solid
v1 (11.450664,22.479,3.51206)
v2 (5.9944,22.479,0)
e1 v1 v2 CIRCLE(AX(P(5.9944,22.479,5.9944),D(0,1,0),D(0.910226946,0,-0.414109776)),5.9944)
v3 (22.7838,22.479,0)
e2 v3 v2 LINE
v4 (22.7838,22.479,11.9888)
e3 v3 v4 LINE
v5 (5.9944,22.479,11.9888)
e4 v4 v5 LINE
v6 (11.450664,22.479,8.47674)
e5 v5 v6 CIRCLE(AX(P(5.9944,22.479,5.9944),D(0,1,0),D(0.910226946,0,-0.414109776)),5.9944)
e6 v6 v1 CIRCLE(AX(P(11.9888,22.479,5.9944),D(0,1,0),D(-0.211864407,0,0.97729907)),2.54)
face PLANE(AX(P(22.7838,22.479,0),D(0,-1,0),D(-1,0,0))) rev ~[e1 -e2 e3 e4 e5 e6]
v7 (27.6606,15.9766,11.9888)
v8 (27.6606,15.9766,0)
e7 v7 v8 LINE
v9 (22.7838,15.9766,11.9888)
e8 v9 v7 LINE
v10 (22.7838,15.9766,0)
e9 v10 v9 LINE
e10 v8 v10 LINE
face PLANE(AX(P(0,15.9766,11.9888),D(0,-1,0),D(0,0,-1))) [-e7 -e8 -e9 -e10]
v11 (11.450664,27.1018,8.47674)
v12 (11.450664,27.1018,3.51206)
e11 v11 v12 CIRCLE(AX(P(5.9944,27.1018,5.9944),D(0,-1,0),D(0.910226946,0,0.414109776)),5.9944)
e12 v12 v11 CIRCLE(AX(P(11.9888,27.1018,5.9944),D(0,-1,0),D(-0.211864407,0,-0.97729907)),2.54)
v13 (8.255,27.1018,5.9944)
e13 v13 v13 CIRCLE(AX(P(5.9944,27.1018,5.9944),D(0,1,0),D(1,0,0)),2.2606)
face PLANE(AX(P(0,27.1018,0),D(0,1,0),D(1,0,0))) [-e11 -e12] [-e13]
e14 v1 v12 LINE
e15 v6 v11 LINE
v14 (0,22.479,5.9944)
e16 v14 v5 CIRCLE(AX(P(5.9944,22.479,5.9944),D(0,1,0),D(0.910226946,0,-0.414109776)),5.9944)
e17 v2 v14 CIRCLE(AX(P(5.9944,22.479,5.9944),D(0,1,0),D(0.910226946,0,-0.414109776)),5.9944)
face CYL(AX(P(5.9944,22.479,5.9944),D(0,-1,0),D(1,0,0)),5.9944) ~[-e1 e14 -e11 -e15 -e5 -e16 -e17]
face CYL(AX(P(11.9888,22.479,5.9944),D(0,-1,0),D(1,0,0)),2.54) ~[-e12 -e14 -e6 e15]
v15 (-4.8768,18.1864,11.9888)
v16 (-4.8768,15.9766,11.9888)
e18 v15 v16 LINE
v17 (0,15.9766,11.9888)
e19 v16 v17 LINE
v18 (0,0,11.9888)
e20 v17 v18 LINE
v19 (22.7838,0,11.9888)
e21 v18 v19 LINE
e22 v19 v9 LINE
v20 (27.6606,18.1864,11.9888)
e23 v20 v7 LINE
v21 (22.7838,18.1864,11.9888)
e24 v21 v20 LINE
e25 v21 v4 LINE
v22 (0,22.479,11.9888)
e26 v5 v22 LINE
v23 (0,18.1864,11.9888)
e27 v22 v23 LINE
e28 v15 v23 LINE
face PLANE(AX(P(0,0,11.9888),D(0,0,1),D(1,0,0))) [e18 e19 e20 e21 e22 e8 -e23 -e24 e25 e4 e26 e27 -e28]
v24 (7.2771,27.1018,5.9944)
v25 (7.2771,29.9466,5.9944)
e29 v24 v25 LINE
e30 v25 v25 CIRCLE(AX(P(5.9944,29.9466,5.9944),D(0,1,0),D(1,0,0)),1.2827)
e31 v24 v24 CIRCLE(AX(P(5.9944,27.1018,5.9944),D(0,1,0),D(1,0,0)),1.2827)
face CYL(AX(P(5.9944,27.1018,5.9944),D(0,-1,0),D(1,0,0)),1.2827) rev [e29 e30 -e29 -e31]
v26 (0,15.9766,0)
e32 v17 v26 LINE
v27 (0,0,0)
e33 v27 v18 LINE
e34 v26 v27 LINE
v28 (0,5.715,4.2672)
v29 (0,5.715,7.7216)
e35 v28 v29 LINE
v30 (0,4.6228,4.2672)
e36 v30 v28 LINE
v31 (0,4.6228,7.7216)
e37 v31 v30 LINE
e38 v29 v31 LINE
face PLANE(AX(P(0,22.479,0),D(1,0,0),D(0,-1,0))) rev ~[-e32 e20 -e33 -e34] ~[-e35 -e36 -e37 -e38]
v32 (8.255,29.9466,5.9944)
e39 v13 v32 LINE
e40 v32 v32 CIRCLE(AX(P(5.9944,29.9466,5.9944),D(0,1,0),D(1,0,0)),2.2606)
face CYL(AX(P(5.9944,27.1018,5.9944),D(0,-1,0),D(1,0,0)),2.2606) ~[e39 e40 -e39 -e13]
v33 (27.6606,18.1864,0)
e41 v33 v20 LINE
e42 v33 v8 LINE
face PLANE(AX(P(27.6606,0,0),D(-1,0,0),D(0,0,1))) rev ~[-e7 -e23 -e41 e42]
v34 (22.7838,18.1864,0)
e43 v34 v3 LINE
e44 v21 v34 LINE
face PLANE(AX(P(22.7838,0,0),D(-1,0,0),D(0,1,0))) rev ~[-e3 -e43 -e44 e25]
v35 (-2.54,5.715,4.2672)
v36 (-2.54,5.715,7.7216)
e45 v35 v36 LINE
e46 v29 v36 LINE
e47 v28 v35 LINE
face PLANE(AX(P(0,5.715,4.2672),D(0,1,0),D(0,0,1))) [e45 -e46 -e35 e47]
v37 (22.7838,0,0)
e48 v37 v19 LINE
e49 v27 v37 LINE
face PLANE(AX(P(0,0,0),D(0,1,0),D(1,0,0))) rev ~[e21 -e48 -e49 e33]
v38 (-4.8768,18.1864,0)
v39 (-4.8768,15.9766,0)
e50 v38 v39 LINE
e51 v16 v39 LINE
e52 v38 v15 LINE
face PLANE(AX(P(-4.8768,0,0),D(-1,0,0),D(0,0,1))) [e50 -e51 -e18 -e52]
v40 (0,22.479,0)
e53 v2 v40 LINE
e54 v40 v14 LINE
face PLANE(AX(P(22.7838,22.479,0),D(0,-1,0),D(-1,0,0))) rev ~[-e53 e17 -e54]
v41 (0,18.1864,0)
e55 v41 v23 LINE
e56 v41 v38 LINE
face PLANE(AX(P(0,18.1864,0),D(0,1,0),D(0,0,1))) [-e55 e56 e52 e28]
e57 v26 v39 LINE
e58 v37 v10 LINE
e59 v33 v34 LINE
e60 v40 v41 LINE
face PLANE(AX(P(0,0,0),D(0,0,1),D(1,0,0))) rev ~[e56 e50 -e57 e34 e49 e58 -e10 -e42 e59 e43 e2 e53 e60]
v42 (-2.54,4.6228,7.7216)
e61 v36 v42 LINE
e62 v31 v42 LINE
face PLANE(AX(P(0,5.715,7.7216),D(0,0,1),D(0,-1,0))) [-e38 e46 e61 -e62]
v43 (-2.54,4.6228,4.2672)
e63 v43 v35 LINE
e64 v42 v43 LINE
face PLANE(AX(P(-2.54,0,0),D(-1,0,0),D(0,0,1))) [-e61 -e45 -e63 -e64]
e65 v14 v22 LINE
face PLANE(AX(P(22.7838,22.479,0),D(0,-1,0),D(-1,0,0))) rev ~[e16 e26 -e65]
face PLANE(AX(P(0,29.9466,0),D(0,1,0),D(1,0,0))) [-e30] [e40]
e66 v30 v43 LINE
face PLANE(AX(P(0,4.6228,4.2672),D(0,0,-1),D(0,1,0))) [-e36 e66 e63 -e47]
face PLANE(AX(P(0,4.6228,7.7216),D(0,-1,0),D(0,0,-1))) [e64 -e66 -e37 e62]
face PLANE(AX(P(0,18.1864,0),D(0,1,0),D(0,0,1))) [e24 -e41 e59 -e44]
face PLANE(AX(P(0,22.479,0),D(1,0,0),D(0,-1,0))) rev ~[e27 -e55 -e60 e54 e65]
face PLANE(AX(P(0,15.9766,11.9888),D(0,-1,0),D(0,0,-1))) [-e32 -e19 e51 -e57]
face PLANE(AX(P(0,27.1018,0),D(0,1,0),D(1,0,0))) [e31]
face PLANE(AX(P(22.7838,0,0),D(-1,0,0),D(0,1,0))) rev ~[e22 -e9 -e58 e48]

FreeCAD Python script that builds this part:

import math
import FreeCAD as App
import Part
import Sketcher
Q = App.Units.Quantity

doc = App.newDocument("Part")
body = doc.addObject("PartDesign::Body", "Body")

# Sketch on XY plane
sketch1 = doc.addObject("Sketcher::SketchObject", "Sketch")
body.addObject(sketch1)
sketch1.AttachmentSupport = (doc.XY_Plane, [""])
sketch1.MapMode = "FlatFace"
sketch1.addGeometry(Part.LineSegment(App.Vector(0, 22.479, 0), App.Vector(0, 0, 0)), False)
sketch1.addGeometry(Part.LineSegment(App.Vector(0, 0, 0), App.Vector(22.7838, 0, 0)), False)
sketch1.addGeometry(Part.LineSegment(App.Vector(22.7838, 0, 0), App.Vector(22.7838, 22.479, 0)), False)
sketch1.addGeometry(Part.LineSegment(App.Vector(22.7838, 22.479, 0), App.Vector(0, 22.479, 0)), False)
sketch1.addConstraint(Sketcher.Constraint("Coincident", 0, 2, 1, 1))
sketch1.addConstraint(Sketcher.Constraint("Coincident", 1, 2, 2, 1))
sketch1.addConstraint(Sketcher.Constraint("Coincident", 2, 2, 3, 1))
sketch1.addConstraint(Sketcher.Constraint("Coincident", 3, 2, 0, 1))
sketch1.addConstraint(Sketcher.Constraint("Vertical", 0))
sketch1.addConstraint(Sketcher.Constraint("Horizontal", 1))
sketch1.addConstraint(Sketcher.Constraint("Vertical", 2))
sketch1.addConstraint(Sketcher.Constraint("Horizontal", 3))
sketch1.addConstraint(Sketcher.Constraint("Coincident", 0, 2, -1, 1))
sketch1.addConstraint(Sketcher.Constraint("DistanceX", 1, 1, 1, 2, Q("0.897 in")))
sketch1.addConstraint(Sketcher.Constraint("DistanceY", 0, 2, 0, 1, Q("0.885 in")))
pad1 = doc.addObject("PartDesign::Pad", "Pad")
body.addObject(pad1)
pad1.Profile = sketch1
pad1.Length = Q("0.472 in")

# Sketch on YZ plane
sketch2 = doc.addObject("Sketcher::SketchObject", "Sketch001")
body.addObject(sketch2)
sketch2.AttachmentSupport = (doc.YZ_Plane, [""])
sketch2.MapMode = "FlatFace"
sketch2.addGeometry(Part.LineSegment(App.Vector(18.1864, 11.9888, 0), App.Vector(18.1864, 0, 0)), False)
sketch2.addGeometry(Part.LineSegment(App.Vector(18.1864, 0, 0), App.Vector(15.9766, 0, 0)), False)
sketch2.addGeometry(Part.LineSegment(App.Vector(15.9766, 0, 0), App.Vector(15.9766, 11.9888, 0)), False)
sketch2.addGeometry(Part.LineSegment(App.Vector(15.9766, 11.9888, 0), App.Vector(18.1864, 11.9888, 0)), False)
sketch2.addConstraint(Sketcher.Constraint("Coincident", 0, 2, 1, 1))
sketch2.addConstraint(Sketcher.Constraint("Coincident", 1, 2, 2, 1))
sketch2.addConstraint(Sketcher.Constraint("Coincident", 2, 2, 3, 1))
sketch2.addConstraint(Sketcher.Constraint("Coincident", 3, 2, 0, 1))
sketch2.addConstraint(Sketcher.Constraint("Vertical", 0))
sketch2.addConstraint(Sketcher.Constraint("Horizontal", 1))
sketch2.addConstraint(Sketcher.Constraint("Vertical", 2))
sketch2.addConstraint(Sketcher.Constraint("Horizontal", 3))
sketch2.addConstraint(Sketcher.Constraint("PointOnObject", 0, 2, -1))
sketch2.addConstraint(Sketcher.Constraint("DistanceX", 1, 2, 1, 1, Q("0.087 in")))
sketch2.addConstraint(Sketcher.Constraint("DistanceY", 0, 2, 0, 1, Q("0.472 in")))
sketch2.addConstraint(Sketcher.Constraint("DistanceX", -1, 1, 0, 2, Q("0.716 in")))
pad2 = doc.addObject("PartDesign::Pad", "Pad001")
body.addObject(pad2)
pad2.Profile = sketch2
pad2.Type = "TwoLengths"
pad2.Length = Q("0.192 in")
pad2.Length2 = Q("1.089 in")
pad2.Reversed = True

# Sketch on YZ plane
sketch3 = doc.addObject("Sketcher::SketchObject", "Sketch002")
body.addObject(sketch3)
sketch3.AttachmentSupport = (doc.YZ_Plane, [""])
sketch3.MapMode = "FlatFace"
sketch3.addGeometry(Part.LineSegment(App.Vector(5.715, 7.7216, 0), App.Vector(5.715, 4.2672, 0)), False)
sketch3.addGeometry(Part.LineSegment(App.Vector(5.715, 4.2672, 0), App.Vector(4.6228, 4.2672, 0)), False)
sketch3.addGeometry(Part.LineSegment(App.Vector(4.6228, 4.2672, 0), App.Vector(4.6228, 7.7216, 0)), False)
sketch3.addGeometry(Part.LineSegment(App.Vector(4.6228, 7.7216, 0), App.Vector(5.715, 7.7216, 0)), False)
sketch3.addConstraint(Sketcher.Constraint("Coincident", 0, 2, 1, 1))
sketch3.addConstraint(Sketcher.Constraint("Coincident", 1, 2, 2, 1))
sketch3.addConstraint(Sketcher.Constraint("Coincident", 2, 2, 3, 1))
sketch3.addConstraint(Sketcher.Constraint("Coincident", 3, 2, 0, 1))
sketch3.addConstraint(Sketcher.Constraint("Vertical", 0))
sketch3.addConstraint(Sketcher.Constraint("Horizontal", 1))
sketch3.addConstraint(Sketcher.Constraint("Vertical", 2))
sketch3.addConstraint(Sketcher.Constraint("Horizontal", 3))
sketch3.addConstraint(Sketcher.Constraint("DistanceX", 1, 2, 1, 1, Q("0.043 in")))
sketch3.addConstraint(Sketcher.Constraint("DistanceY", 0, 2, 0, 1, Q("0.136 in")))
sketch3.addConstraint(Sketcher.Constraint("DistanceY", -1, 1, 0, 2, Q("0.168 in")))
sketch3.addConstraint(Sketcher.Constraint("DistanceX", -1, 1, 1, 2, Q("0.182 in")))
pad3 = doc.addObject("PartDesign::Pad", "Pad002")
body.addObject(pad3)
pad3.Profile = sketch3
pad3.Length = Q("0.1 in")
pad3.Reversed = True

# Sketch on XZ plane
sketch4 = doc.addObject("Sketcher::SketchObject", "Sketch003")
body.addObject(sketch4)
sketch4.AttachmentSupport = (doc.XZ_Plane, [""])
sketch4.MapMode = "FlatFace"
sketch4.AttachmentOffset = App.Placement(App.Vector(0, 0, -0.885 * 25.4), App.Rotation())
sketch4.addGeometry(Part.ArcOfCircle(Part.Circle(App.Vector(5.9944, 5.9944, 0), App.Vector(0, 0, 1), 5.9944), math.radians(24.463267), math.radians(335.536733)), False)
sketch4.addGeometry(Part.ArcOfCircle(Part.Circle(App.Vector(11.9888, 5.9944, 0), App.Vector(0, 0, 1), 2.54), math.radians(-102.231634), math.radians(102.231634)), False)
sketch4.addConstraint(Sketcher.Constraint("Coincident", 0, 1, 1, 2))
sketch4.addConstraint(Sketcher.Constraint("Coincident", 1, 1, 0, 2))
sketch4.addConstraint(Sketcher.Constraint("Horizontal", 0, 3, 1, 3))
sketch4.addConstraint(Sketcher.Constraint("Radius", 1, Q("0.1 in")))
sketch4.addConstraint(Sketcher.Constraint("Radius", 0, Q("0.236 in")))
sketch4.addConstraint(Sketcher.Constraint("DistanceX", -1, 1, 0, 3, Q("0.236 in")))
sketch4.addConstraint(Sketcher.Constraint("DistanceY", -1, 1, 0, 3, Q("0.236 in")))
sketch4.addConstraint(Sketcher.Constraint("DistanceX", -1, 1, 1, 3, Q("0.472 in")))
pad4 = doc.addObject("PartDesign::Pad", "Pad003")
body.addObject(pad4)
pad4.Profile = sketch4
pad4.Length = Q("0.182 in")
pad4.Reversed = True

# Sketch on XZ plane
sketch5 = doc.addObject("Sketcher::SketchObject", "Sketch004")
body.addObject(sketch5)
sketch5.AttachmentSupport = (doc.XZ_Plane, [""])
sketch5.MapMode = "FlatFace"
sketch5.AttachmentOffset = App.Placement(App.Vector(0, 0, -1.067 * 25.4), App.Rotation())
sketch5.addGeometry(Part.Circle(App.Vector(5.9944, 5.9944, 0), App.Vector(0, 0, 1), 2.2606), False)
sketch5.addGeometry(Part.Circle(App.Vector(5.9944, 5.9944, 0), App.Vector(0, 0, 1), 1.2827), False)
sketch5.addConstraint(Sketcher.Constraint("Coincident", 1, 3, 0, 3))
sketch5.addConstraint(Sketcher.Constraint("Diameter", 0, Q("0.178 in")))
sketch5.addConstraint(Sketcher.Constraint("Diameter", 1, Q("0.101 in")))
sketch5.addConstraint(Sketcher.Constraint("DistanceX", -1, 1, 0, 3, Q("0.236 in")))
sketch5.addConstraint(Sketcher.Constraint("DistanceY", -1, 1, 0, 3, Q("0.236 in")))
pad5 = doc.addObject("PartDesign::Pad", "Pad004")
body.addObject(pad5)
pad5.Profile = sketch5
pad5.Length = Q("0.112 in")
pad5.Reversed = True

doc.recompute()
